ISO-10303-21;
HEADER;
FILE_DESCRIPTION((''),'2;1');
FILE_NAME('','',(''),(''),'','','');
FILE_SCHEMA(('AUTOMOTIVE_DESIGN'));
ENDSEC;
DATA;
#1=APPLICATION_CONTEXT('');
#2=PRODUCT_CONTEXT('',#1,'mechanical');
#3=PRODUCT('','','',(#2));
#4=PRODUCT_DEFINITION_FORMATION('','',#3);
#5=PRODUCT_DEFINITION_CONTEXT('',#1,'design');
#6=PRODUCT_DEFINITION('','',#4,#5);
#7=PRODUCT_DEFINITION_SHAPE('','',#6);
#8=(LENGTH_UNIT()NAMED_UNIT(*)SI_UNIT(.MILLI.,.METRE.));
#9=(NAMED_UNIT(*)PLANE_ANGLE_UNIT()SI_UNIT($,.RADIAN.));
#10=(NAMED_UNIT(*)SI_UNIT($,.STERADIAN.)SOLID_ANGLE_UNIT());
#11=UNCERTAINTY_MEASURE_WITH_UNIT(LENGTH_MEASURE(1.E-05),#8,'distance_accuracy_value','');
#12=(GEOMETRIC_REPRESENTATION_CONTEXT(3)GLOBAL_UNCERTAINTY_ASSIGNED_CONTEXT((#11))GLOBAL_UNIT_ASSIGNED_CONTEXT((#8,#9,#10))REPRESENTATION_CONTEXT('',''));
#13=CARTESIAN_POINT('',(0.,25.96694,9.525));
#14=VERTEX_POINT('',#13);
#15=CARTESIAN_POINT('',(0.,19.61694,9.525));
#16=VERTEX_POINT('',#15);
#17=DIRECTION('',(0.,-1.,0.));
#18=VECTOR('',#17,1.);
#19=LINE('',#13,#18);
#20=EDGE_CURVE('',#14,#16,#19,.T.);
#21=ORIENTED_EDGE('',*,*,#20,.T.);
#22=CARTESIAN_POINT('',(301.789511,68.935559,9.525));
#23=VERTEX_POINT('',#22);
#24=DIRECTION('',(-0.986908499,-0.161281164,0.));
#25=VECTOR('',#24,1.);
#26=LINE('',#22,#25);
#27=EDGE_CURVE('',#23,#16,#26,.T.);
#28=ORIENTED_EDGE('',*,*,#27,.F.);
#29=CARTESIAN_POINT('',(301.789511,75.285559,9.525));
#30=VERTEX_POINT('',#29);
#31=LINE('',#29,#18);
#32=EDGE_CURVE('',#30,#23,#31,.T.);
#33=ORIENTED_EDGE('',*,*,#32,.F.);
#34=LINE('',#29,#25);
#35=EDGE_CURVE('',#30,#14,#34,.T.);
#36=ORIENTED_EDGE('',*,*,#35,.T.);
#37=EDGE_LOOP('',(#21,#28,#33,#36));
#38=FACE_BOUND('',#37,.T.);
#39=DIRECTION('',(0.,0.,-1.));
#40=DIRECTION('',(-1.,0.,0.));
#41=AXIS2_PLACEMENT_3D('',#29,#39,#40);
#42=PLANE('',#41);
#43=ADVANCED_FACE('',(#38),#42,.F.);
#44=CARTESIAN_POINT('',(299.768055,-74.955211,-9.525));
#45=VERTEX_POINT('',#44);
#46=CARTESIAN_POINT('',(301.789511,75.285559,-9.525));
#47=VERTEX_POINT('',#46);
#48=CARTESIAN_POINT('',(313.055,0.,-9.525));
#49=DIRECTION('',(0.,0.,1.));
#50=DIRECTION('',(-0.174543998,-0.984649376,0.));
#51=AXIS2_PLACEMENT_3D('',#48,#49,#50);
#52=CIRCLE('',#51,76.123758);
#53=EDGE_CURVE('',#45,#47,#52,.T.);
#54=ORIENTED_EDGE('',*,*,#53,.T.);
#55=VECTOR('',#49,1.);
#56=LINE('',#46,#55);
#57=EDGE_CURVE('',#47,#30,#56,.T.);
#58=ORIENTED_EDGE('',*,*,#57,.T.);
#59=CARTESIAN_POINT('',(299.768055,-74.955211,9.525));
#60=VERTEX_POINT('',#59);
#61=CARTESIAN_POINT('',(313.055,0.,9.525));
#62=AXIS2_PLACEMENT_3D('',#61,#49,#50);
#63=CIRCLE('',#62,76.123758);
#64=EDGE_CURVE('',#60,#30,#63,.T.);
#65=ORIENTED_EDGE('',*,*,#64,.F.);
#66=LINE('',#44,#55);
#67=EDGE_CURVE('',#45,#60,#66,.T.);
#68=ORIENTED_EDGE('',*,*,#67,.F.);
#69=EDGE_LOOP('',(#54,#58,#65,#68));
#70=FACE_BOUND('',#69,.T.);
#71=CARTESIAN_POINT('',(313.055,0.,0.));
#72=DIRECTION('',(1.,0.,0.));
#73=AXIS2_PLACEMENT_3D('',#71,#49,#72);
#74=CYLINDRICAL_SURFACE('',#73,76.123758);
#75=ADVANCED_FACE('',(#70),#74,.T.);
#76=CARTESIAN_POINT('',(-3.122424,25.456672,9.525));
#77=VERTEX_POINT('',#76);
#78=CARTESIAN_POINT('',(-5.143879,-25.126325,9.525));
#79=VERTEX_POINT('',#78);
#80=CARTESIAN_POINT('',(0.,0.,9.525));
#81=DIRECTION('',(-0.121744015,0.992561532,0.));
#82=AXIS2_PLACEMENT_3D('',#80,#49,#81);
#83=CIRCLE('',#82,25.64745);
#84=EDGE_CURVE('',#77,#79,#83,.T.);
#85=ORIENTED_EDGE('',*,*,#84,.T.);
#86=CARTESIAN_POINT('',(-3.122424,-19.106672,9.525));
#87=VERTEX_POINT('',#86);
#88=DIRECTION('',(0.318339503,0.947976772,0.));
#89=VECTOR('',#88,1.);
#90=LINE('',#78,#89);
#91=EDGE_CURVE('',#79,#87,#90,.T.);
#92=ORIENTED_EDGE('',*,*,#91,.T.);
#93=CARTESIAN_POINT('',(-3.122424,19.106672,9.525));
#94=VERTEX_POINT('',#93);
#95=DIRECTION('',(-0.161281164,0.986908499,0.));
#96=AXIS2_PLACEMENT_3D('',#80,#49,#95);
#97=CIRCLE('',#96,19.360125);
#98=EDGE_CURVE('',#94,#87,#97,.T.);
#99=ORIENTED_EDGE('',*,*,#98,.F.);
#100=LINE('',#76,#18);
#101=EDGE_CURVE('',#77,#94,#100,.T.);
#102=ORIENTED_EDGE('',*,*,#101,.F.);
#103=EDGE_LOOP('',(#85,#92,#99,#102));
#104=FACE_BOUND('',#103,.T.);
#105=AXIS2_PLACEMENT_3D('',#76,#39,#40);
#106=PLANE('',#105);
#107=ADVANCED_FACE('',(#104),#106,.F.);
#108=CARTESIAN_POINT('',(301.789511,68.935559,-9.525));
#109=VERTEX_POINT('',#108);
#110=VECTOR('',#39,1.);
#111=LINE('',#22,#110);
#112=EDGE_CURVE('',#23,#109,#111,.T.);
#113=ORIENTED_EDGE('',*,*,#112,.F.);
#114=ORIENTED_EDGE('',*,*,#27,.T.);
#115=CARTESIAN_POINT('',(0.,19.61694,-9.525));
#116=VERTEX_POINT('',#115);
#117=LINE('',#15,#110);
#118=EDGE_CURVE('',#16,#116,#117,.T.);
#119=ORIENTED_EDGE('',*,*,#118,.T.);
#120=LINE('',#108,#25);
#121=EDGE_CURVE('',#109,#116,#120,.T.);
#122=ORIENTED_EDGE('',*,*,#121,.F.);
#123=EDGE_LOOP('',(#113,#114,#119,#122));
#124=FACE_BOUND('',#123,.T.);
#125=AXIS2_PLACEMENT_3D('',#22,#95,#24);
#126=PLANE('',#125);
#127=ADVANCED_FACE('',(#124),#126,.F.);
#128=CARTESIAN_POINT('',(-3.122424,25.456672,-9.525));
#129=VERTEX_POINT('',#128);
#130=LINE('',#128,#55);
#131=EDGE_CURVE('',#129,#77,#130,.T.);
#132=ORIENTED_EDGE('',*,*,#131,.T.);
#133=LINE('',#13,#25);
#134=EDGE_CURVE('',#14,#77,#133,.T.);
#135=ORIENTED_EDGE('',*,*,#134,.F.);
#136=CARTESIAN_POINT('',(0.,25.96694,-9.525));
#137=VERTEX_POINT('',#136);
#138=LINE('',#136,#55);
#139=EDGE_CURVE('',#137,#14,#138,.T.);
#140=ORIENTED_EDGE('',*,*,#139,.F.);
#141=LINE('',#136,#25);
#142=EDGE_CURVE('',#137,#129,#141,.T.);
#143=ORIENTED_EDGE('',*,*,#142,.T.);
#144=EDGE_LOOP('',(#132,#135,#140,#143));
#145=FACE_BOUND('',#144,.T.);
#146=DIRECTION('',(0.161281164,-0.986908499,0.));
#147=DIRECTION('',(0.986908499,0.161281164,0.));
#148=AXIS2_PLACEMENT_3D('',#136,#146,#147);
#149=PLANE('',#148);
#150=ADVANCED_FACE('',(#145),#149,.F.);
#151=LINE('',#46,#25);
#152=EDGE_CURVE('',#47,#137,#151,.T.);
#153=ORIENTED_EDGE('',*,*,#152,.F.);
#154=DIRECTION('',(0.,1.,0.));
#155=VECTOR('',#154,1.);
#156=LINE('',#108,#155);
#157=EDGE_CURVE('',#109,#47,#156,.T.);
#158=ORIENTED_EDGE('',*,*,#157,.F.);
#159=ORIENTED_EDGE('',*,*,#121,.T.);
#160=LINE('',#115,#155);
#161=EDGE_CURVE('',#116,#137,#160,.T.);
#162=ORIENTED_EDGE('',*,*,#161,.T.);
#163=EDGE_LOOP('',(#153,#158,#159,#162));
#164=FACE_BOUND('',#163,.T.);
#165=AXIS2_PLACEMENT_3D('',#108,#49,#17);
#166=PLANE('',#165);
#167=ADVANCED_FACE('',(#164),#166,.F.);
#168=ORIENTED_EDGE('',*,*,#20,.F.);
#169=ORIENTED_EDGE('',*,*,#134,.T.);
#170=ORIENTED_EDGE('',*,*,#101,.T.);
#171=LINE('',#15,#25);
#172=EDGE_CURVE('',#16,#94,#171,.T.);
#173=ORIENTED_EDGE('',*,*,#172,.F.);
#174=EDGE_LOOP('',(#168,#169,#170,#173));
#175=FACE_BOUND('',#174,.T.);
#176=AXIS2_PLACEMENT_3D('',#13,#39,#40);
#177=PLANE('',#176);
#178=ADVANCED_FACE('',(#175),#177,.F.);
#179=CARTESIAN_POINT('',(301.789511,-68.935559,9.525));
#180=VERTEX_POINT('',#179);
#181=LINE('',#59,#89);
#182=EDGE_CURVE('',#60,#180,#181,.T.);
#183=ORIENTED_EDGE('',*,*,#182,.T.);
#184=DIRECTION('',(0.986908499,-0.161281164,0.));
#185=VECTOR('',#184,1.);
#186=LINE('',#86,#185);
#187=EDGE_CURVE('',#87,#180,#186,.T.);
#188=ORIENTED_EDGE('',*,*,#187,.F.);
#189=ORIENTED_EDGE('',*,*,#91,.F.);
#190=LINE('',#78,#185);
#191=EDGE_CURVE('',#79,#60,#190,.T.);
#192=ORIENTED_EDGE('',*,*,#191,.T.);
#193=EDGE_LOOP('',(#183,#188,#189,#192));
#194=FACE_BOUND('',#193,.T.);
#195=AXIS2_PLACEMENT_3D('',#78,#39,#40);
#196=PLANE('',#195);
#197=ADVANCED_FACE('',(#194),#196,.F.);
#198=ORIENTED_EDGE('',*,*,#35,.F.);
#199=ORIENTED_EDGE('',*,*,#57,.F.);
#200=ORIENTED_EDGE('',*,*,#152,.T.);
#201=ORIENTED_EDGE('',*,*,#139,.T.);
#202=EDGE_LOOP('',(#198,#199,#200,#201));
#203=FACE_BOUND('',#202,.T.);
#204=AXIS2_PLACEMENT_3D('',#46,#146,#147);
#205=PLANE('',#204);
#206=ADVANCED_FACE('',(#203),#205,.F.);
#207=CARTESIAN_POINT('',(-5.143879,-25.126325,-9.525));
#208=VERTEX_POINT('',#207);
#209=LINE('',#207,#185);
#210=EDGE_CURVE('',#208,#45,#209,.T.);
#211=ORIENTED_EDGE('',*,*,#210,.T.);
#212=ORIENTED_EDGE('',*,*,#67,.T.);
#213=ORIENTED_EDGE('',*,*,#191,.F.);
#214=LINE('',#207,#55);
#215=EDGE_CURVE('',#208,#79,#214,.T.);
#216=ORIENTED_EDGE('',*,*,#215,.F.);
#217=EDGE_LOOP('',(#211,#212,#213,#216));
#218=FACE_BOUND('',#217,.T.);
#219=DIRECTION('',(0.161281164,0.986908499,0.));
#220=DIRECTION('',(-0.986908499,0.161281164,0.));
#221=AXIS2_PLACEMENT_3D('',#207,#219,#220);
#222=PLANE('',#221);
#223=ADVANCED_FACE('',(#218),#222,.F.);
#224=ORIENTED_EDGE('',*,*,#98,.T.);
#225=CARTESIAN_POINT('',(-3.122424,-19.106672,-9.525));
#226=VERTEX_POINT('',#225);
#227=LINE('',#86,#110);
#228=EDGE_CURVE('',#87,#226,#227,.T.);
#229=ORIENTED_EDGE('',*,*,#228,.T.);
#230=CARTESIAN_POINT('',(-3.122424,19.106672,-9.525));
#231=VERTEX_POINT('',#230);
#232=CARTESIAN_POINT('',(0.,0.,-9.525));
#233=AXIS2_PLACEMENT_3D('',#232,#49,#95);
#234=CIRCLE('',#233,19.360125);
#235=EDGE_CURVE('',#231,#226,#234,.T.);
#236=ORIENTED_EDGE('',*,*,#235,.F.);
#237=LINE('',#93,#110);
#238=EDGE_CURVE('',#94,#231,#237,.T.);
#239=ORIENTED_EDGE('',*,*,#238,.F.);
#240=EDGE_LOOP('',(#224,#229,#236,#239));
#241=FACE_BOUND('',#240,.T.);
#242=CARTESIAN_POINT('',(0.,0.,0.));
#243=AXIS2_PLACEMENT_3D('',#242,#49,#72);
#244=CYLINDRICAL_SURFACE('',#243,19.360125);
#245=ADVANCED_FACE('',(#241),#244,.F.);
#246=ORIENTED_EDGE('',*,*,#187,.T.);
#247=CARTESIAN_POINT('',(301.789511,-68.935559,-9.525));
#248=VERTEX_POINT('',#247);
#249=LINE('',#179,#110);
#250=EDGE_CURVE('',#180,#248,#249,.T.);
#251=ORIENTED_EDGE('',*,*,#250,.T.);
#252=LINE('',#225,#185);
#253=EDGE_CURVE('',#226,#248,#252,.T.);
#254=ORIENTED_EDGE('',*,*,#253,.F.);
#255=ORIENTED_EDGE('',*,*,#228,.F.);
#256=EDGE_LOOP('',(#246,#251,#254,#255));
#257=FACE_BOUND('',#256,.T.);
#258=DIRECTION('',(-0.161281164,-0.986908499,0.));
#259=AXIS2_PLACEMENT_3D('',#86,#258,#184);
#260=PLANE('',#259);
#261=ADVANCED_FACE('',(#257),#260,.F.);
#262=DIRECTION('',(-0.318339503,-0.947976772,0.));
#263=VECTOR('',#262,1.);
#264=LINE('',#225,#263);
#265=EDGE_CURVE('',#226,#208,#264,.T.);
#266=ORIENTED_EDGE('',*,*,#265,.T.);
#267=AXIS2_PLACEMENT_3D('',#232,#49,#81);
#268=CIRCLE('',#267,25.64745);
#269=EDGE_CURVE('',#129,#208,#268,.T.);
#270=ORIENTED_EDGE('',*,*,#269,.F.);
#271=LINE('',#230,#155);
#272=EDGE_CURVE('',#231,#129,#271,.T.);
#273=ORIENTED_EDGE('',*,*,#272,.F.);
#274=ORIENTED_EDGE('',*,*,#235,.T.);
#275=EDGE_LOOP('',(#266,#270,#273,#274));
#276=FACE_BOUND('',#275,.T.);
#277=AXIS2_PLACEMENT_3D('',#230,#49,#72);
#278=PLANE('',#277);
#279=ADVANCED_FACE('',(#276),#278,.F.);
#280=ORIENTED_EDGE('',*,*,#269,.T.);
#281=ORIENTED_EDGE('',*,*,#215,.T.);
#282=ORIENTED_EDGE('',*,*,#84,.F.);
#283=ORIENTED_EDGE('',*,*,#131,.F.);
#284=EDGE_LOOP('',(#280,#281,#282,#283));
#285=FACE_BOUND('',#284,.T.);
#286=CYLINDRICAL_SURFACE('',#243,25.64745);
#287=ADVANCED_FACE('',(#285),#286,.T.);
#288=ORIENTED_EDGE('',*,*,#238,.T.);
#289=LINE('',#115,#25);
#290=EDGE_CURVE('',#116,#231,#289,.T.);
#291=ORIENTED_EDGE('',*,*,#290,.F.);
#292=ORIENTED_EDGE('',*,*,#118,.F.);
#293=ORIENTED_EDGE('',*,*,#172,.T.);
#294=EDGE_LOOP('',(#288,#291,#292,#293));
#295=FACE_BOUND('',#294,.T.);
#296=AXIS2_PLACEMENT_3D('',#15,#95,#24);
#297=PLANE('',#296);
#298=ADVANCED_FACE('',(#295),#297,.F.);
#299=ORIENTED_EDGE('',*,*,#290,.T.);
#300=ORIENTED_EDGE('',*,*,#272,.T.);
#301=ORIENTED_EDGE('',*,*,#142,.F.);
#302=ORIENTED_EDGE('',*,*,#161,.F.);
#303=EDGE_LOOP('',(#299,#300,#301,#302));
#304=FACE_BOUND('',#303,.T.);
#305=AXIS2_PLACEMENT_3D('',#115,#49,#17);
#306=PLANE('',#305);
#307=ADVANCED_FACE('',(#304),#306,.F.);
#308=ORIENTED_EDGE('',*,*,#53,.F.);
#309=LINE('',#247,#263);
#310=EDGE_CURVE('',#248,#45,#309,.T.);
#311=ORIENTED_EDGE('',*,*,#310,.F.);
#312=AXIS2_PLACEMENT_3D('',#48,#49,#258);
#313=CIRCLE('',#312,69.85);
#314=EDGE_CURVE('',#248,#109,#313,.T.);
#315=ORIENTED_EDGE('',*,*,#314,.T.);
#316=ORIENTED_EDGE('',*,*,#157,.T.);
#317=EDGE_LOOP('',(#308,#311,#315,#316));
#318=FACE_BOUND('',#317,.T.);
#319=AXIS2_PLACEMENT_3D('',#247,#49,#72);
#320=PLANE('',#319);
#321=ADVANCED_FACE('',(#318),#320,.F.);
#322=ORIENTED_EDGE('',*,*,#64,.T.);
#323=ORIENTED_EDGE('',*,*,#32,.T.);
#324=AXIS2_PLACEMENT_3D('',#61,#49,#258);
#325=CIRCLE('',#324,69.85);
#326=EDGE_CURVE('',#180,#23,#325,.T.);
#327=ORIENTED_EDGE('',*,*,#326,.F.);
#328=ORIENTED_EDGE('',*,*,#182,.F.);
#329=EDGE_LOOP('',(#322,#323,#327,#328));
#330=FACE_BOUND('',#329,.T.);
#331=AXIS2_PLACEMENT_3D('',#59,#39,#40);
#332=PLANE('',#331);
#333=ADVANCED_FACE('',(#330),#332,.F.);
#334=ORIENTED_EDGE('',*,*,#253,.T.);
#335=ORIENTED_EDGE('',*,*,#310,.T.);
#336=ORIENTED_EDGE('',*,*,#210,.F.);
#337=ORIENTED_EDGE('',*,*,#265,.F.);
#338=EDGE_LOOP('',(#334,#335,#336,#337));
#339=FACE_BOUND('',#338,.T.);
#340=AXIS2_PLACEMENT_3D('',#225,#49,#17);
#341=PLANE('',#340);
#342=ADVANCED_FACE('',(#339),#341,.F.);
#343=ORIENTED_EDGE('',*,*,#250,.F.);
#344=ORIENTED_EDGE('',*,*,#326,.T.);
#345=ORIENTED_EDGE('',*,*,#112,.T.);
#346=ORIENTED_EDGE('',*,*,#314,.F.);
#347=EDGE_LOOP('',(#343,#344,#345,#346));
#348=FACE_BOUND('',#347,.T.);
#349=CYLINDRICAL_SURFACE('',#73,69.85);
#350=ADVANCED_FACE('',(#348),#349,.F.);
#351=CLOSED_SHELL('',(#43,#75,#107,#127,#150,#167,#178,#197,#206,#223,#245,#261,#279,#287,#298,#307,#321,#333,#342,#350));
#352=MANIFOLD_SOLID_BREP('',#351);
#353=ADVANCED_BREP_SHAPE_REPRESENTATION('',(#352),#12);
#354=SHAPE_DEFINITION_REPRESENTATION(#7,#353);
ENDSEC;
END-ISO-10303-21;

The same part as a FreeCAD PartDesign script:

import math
import FreeCAD as App
import Part
import Sketcher
from FreeCAD import Vector
Q = App.Units.Quantity

doc = App.newDocument("Part")
body = doc.addObject("PartDesign::Body", "Body")

# Sketch on YZ plane
sketch1 = body.newObject("Sketcher::SketchObject", "Sketch")
sketch1.AttachmentSupport = (doc.getObject("YZ_Plane"), [""])
sketch1.MapMode = "FlatFace"
sketch1.addGeometry(Part.LineSegment(Vector(25.96694, 9.525, 0), Vector(19.61694, 9.525, 0)), False)
sketch1.addGeometry(Part.LineSegment(Vector(19.61694, 9.525, 0), Vector(19.61694, -9.525, 0)), False)
sketch1.addGeometry(Part.LineSegment(Vector(19.61694, -9.525, 0), Vector(25.96694, -9.525, 0)), False)
sketch1.addGeometry(Part.LineSegment(Vector(25.96694, -9.525, 0), Vector(25.96694, 9.525, 0)), False)
sketch1.addConstraint(Sketcher.Constraint("Coincident", 0, 2, 1, 1))
sketch1.addConstraint(Sketcher.Constraint("Coincident", 1, 2, 2, 1))
sketch1.addConstraint(Sketcher.Constraint("Coincident", 2, 2, 3, 1))
sketch1.addConstraint(Sketcher.Constraint("Coincident", 3, 2, 0, 1))
sketch1.addConstraint(Sketcher.Constraint("Horizontal", 0))
sketch1.addConstraint(Sketcher.Constraint("Vertical", 1))
sketch1.addConstraint(Sketcher.Constraint("Horizontal", 2))
sketch1.addConstraint(Sketcher.Constraint("Vertical", 3))
sketch1.addConstraint(Sketcher.Constraint("DistanceX", 0, 2, 0, 1, Q("0.25 in")))
sketch1.addConstraint(Sketcher.Constraint("DistanceY", 1, 2, 1, 1, Q("0.75 in")))
sketch1.addConstraint(Sketcher.Constraint("DistanceY", -1, 1, 0, 2, Q("0.375 in")))
sketch1.addConstraint(Sketcher.Constraint("DistanceX", -1, 1, 0, 2, Q("19.61694 mm")))

# Sketch on XY plane
sketch2 = body.newObject("Sketcher::SketchObject", "Sketch001")
sketch2.AttachmentSupport = (doc.getObject("XY_Plane"), [""])
sketch2.MapMode = "FlatFace"
sketch2.addGeometry(Part.LineSegment(Vector(-3.122424, 19.106672, 0), Vector(301.789511, 68.935559, 0)), False)
sketch2.addGeometry(Part.ArcOfCircle(Part.Circle(Vector(313.055, 0, 0), Vector(0, 0, 1), 69.85), math.radians(-99.281267), math.radians(99.281267)), False)
sketch2.addGeometry(Part.LineSegment(Vector(301.789511, -68.935559, 0), Vector(-3.122424, -19.106672, 0)), False)
sketch2.addGeometry(Part.ArcOfCircle(Part.Circle(Vector(0, 0, 0), Vector(0, 0, 1), 19.360125), math.radians(99.281267), math.radians(260.718733)), False)
sketch2.addConstraint(Sketcher.Constraint("Tangent", 0, 2, 1, 2))
sketch2.addConstraint(Sketcher.Constraint("Tangent", 1, 1, 2, 1))
sketch2.addConstraint(Sketcher.Constraint("Tangent", 2, 2, 3, 2))
sketch2.addConstraint(Sketcher.Constraint("Tangent", 3, 1, 0, 1))
sketch2.addConstraint(Sketcher.Constraint("Coincident", 3, 3, -1, 1))
sketch2.addConstraint(Sketcher.Constraint("PointOnObject", 1, 3, -1))
sketch2.addConstraint(Sketcher.Constraint("Radius", 1, Q("2.75 in")))
sketch2.addConstraint(Sketcher.Constraint("DistanceX", -1, 1, 1, 3, Q("12.325 in")))
sketch2.addConstraint(Sketcher.Constraint("Radius", 3, Q("19.360125 mm")))
doc.recompute()

additivepipe = body.newObject("PartDesign::AdditivePipe", "AdditivePipe")
additivepipe.Profile = sketch1
additivepipe.Spine = (sketch2, ["Edge1", "Edge2", "Edge3", "Edge4"])

doc.recompute()
